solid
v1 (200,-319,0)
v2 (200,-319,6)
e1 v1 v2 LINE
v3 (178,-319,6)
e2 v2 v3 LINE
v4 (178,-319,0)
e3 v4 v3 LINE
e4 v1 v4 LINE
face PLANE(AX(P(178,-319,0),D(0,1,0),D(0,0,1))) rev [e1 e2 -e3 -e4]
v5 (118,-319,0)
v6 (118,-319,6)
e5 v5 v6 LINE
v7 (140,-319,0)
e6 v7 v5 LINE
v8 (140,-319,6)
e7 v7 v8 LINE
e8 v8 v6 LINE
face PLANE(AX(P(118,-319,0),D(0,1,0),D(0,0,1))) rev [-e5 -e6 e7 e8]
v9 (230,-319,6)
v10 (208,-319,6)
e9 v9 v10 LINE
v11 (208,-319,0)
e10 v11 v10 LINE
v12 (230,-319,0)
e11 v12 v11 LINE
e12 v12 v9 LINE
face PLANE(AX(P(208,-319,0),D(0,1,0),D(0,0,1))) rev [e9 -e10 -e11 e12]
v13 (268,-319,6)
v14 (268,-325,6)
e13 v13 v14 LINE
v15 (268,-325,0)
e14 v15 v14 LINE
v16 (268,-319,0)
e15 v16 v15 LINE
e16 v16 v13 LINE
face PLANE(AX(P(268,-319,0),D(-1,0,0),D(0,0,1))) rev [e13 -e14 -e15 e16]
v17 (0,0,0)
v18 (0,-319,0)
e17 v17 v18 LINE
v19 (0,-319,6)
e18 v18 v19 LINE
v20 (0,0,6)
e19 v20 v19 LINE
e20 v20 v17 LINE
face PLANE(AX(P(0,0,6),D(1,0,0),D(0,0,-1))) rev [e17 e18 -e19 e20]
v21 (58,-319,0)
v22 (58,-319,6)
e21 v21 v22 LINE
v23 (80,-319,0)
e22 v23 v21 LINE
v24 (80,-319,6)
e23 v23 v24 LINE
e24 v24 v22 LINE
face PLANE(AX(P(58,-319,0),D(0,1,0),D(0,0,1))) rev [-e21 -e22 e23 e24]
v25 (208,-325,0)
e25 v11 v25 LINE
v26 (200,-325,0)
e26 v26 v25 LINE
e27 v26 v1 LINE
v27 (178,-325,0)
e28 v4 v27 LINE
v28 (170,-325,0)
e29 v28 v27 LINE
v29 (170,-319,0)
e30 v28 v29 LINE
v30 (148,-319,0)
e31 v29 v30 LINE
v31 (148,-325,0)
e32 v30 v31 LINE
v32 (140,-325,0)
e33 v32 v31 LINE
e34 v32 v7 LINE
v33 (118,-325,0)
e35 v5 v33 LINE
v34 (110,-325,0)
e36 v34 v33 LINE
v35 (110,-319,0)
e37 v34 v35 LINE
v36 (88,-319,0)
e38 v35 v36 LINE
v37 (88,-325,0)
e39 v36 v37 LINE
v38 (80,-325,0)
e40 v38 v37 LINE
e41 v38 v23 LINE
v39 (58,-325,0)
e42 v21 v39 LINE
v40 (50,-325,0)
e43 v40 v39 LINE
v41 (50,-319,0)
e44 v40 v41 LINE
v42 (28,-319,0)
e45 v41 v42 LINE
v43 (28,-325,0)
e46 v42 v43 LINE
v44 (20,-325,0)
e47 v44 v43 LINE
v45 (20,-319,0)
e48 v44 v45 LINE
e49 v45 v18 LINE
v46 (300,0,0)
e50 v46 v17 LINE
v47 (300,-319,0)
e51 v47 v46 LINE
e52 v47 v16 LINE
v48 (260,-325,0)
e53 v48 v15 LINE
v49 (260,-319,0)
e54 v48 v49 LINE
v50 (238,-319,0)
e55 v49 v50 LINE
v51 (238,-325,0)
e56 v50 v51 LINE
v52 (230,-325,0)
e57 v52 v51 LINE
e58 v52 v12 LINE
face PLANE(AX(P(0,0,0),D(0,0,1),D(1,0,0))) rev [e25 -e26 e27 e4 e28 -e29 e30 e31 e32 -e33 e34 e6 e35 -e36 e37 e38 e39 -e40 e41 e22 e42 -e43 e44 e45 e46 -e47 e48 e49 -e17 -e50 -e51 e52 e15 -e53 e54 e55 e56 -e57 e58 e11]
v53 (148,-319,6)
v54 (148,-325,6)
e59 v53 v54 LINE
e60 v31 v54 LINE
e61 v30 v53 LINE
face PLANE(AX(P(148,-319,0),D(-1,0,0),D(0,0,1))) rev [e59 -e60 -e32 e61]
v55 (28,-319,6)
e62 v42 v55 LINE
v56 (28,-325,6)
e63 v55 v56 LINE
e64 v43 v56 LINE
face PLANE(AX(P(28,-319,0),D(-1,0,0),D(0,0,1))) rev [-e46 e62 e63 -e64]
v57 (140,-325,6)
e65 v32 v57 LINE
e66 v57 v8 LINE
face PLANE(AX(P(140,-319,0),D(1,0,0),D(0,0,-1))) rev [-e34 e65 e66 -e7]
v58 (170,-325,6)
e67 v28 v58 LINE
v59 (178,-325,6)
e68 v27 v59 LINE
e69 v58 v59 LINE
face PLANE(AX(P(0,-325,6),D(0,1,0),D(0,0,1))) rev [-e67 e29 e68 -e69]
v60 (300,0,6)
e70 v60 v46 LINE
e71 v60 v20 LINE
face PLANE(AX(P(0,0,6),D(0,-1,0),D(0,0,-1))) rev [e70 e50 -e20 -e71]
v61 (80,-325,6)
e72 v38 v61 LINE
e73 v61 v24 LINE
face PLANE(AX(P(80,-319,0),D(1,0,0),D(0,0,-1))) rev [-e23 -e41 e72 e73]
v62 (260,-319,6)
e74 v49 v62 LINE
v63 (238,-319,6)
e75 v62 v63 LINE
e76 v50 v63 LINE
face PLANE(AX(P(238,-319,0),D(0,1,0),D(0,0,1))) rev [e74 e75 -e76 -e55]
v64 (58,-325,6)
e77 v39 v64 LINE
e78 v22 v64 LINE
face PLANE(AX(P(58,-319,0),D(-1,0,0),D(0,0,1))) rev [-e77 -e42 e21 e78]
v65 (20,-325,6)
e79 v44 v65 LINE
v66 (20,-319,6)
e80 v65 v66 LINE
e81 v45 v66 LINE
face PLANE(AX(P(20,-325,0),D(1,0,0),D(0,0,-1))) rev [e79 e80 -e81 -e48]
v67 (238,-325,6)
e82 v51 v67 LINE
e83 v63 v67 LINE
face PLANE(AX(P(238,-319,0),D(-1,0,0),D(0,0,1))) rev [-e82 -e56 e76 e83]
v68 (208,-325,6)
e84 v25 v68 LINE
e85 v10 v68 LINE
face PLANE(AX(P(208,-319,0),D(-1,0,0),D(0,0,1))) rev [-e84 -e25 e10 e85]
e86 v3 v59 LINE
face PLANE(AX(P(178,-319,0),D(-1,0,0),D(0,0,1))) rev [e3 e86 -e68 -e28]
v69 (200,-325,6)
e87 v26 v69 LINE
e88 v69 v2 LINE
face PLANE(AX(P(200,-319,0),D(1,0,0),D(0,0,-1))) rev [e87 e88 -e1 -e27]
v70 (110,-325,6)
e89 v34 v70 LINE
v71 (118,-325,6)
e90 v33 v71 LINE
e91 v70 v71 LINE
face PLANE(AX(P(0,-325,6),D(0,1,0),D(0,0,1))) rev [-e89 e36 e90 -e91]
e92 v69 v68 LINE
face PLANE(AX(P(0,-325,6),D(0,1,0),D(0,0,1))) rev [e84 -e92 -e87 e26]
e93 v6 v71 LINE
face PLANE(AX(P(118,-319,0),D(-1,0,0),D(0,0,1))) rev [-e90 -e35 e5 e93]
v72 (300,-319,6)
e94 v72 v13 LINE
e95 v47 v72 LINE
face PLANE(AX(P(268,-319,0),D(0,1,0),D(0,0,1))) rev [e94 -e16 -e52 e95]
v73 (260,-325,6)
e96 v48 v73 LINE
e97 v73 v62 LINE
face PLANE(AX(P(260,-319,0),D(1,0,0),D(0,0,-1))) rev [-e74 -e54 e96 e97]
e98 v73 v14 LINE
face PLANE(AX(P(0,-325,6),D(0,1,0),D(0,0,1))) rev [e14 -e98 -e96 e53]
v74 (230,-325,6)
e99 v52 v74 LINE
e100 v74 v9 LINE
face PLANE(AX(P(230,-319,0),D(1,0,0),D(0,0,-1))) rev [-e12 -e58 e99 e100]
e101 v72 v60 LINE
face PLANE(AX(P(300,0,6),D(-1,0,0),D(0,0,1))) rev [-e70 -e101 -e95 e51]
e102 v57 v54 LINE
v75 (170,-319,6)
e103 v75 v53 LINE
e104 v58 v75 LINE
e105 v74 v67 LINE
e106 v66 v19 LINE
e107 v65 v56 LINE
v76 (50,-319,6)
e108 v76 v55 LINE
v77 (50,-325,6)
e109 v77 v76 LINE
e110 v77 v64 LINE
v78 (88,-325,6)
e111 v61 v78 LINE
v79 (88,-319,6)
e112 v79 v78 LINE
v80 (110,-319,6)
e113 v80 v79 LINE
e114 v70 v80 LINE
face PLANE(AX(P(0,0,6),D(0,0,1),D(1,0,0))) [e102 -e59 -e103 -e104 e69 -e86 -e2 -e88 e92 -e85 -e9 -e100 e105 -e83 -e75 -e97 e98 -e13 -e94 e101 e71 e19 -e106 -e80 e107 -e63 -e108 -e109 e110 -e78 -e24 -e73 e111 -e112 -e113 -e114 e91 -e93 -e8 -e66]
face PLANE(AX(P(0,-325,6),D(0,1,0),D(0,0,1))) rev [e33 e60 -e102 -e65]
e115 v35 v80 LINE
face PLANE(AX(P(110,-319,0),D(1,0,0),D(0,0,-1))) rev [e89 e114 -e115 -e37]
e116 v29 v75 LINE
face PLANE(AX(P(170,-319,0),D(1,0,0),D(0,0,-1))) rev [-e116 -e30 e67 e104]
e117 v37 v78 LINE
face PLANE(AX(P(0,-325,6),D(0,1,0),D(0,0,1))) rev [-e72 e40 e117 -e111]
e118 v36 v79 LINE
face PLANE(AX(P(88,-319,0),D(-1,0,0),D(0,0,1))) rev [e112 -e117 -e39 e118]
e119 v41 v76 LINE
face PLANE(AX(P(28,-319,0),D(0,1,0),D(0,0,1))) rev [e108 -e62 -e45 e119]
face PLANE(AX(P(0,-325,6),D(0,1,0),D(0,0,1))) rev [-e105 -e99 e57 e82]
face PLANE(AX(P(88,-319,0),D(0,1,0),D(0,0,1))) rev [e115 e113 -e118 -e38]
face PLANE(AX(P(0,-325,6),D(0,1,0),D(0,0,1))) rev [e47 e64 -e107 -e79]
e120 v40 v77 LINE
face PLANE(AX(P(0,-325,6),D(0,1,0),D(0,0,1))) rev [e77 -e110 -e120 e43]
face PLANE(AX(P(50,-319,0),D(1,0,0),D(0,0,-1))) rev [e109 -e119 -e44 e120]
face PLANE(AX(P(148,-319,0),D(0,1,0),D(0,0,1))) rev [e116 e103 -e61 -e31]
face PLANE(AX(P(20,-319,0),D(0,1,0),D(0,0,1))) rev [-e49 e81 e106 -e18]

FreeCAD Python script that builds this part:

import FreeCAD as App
import Part
import Sketcher

V = App.Vector


def add_polygon(sketch, points):
    """Adds a closed chain of lines whose ends are joined by coincident constraints."""
    first, n = sketch.GeometryCount, len(points)
    for a, b in zip(points, points[1:] + points[:1]):
        sketch.addGeometry(Part.LineSegment(App.Vector(*a, 0), App.Vector(*b, 0)), False)
    for i in range(n):
        sketch.addConstraint(Sketcher.Constraint("Coincident", first + i, 2, first + (i + 1) % n, 1))

doc = App.newDocument("Part")
body = doc.addObject("PartDesign::Body", "Body")

# Sketch on XY plane
sketch1 = body.newObject("Sketcher::SketchObject", "Sketch")
sketch1.AttachmentSupport = (doc.getObject("XY_Plane"), [""])
sketch1.MapMode = "FlatFace"
add_polygon(sketch1, [(0, 0), (0, -325), (300, -325), (300, 0)])  # lines 0-3
sketch1.addConstraint(Sketcher.Constraint("Vertical", 0))
sketch1.addConstraint(Sketcher.Constraint("Horizontal", 1))
sketch1.addConstraint(Sketcher.Constraint("Vertical", 2))
sketch1.addConstraint(Sketcher.Constraint("Horizontal", 3))
sketch1.addConstraint(Sketcher.Constraint("Coincident", 3, 2, -1, 1))
sketch1.addConstraint(Sketcher.Constraint("DistanceX", 1, 1, 1, 2, 300.0))
sketch1.addConstraint(Sketcher.Constraint("DistanceY", 0, 2, 0, 1, 325.0))
pad1 = body.newObject("PartDesign::Pad", "Pad")
pad1.Profile = sketch1
pad1.Length = 6

# Sketch on XY plane
sketch2 = body.newObject("Sketcher::SketchObject", "Sketch001")
sketch2.AttachmentSupport = (doc.getObject("XY_Plane"), [""])
sketch2.MapMode = "FlatFace"
sketch2.AttachmentOffset = App.Placement(V(0, 0, 6), App.Rotation())
add_polygon(sketch2, [(28, -319), (28, -325), (50, -325), (50, -319)])  # lines 0-3
add_polygon(sketch2, [(0, -319), (0, -325), (20, -325), (20, -319)])  # lines 4-7
add_polygon(sketch2, [(58, -319), (58, -325), (80, -325), (80, -319)])  # lines 8-11
add_polygon(sketch2, [(88, -319), (88, -325), (110, -325), (110, -319)])  # lines 12-15
add_polygon(sketch2, [(118, -319), (118, -325), (140, -325), (140, -319)])  # lines 16-19
add_polygon(sketch2, [(148, -319), (148, -325), (170, -325), (170, -319)])  # lines 20-23
add_polygon(sketch2, [(178, -319), (178, -325), (200, -325), (200, -319)])  # lines 24-27
add_polygon(sketch2, [(208, -319), (208, -325), (230, -325), (230, -319)])  # lines 28-31
add_polygon(sketch2, [(238, -319), (238, -325), (260, -325), (260, -319)])  # lines 32-35
add_polygon(sketch2, [(268, -319), (268, -325), (300, -325), (300, -319)])  # lines 36-39
sketch2.addConstraint(Sketcher.Constraint("Vertical", 0))
sketch2.addConstraint(Sketcher.Constraint("Horizontal", 1))
sketch2.addConstraint(Sketcher.Constraint("Vertical", 2))
sketch2.addConstraint(Sketcher.Constraint("Horizontal", 3))
sketch2.addConstraint(Sketcher.Constraint("Vertical", 4))
sketch2.addConstraint(Sketcher.Constraint("Horizontal", 5))
sketch2.addConstraint(Sketcher.Constraint("Vertical", 6))
sketch2.addConstraint(Sketcher.Constraint("Horizontal", 7))
sketch2.addConstraint(Sketcher.Constraint("Vertical", 8))
sketch2.addConstraint(Sketcher.Constraint("Horizontal", 9))
sketch2.addConstraint(Sketcher.Constraint("Vertical", 10))
sketch2.addConstraint(Sketcher.Constraint("Horizontal", 11))
sketch2.addConstraint(Sketcher.Constraint("Vertical", 12))
sketch2.addConstraint(Sketcher.Constraint("Horizontal", 13))
sketch2.addConstraint(Sketcher.Constraint("Vertical", 14))
sketch2.addConstraint(Sketcher.Constraint("Horizontal", 15))
sketch2.addConstraint(Sketcher.Constraint("Vertical", 16))
sketch2.addConstraint(Sketcher.Constraint("Horizontal", 17))
sketch2.addConstraint(Sketcher.Constraint("Vertical", 18))
sketch2.addConstraint(Sketcher.Constraint("Horizontal", 19))
sketch2.addConstraint(Sketcher.Constraint("Vertical", 20))
sketch2.addConstraint(Sketcher.Constraint("Horizontal", 21))
sketch2.addConstraint(Sketcher.Constraint("Vertical", 22))
sketch2.addConstraint(Sketcher.Constraint("Horizontal", 23))
sketch2.addConstraint(Sketcher.Constraint("Vertical", 24))
sketch2.addConstraint(Sketcher.Constraint("Horizontal", 25))
sketch2.addConstraint(Sketcher.Constraint("Vertical", 26))
sketch2.addConstraint(Sketcher.Constraint("Horizontal", 27))
sketch2.addConstraint(Sketcher.Constraint("Vertical", 28))
sketch2.addConstraint(Sketcher.Constraint("Horizontal", 29))
sketch2.addConstraint(Sketcher.Constraint("Vertical", 30))
sketch2.addConstraint(Sketcher.Constraint("Horizontal", 31))
sketch2.addConstraint(Sketcher.Constraint("Vertical", 32))
sketch2.addConstraint(Sketcher.Constraint("Horizontal", 33))
sketch2.addConstraint(Sketcher.Constraint("Vertical", 34))
sketch2.addConstraint(Sketcher.Constraint("Horizontal", 35))
sketch2.addConstraint(Sketcher.Constraint("Vertical", 36))
sketch2.addConstraint(Sketcher.Constraint("Horizontal", 37))
sketch2.addConstraint(Sketcher.Constraint("Vertical", 38))
sketch2.addConstraint(Sketcher.Constraint("Horizontal", 39))
sketch2.addConstraint(Sketcher.Constraint("PointOnObject", 4, 2, -2))
sketch2.addConstraint(Sketcher.Constraint("Horizontal", 1, 2, 4, 2))
sketch2.addConstraint(Sketcher.Constraint("Horizontal", 3, 2, 6, 2))
sketch2.addConstraint(Sketcher.Constraint("Horizontal", 5, 2, 8, 2))
sketch2.addConstraint(Sketcher.Constraint("Horizontal", 7, 2, 10, 2))
sketch2.addConstraint(Sketcher.Constraint("Horizontal", 9, 2, 12, 2))
sketch2.addConstraint(Sketcher.Constraint("Horizontal", 11, 2, 14, 2))
sketch2.addConstraint(Sketcher.Constraint("Horizontal", 13, 2, 16, 2))
sketch2.addConstraint(Sketcher.Constraint("Horizontal", 15, 2, 18, 2))
sketch2.addConstraint(Sketcher.Constraint("Horizontal", 17, 2, 20, 2))
sketch2.addConstraint(Sketcher.Constraint("Horizontal", 19, 2, 22, 2))
sketch2.addConstraint(Sketcher.Constraint("Horizontal", 21, 2, 24, 2))
sketch2.addConstraint(Sketcher.Constraint("Horizontal", 23, 2, 26, 2))
sketch2.addConstraint(Sketcher.Constraint("Horizontal", 25, 2, 28, 2))
sketch2.addConstraint(Sketcher.Constraint("Horizontal", 27, 2, 30, 2))
sketch2.addConstraint(Sketcher.Constraint("Horizontal", 29, 2, 32, 2))
sketch2.addConstraint(Sketcher.Constraint("Horizontal", 31, 2, 34, 2))
sketch2.addConstraint(Sketcher.Constraint("Horizontal", 33, 2, 36, 2))
sketch2.addConstraint(Sketcher.Constraint("Horizontal", 35, 2, 38, 2))
sketch2.addConstraint(Sketcher.Constraint("Equal", 3, 9))
sketch2.addConstraint(Sketcher.Constraint("Equal", 11, 13))
sketch2.addConstraint(Sketcher.Constraint("Equal", 15, 17))
sketch2.addConstraint(Sketcher.Constraint("Equal", 19, 21))
sketch2.addConstraint(Sketcher.Constraint("Equal", 23, 25))
sketch2.addConstraint(Sketcher.Constraint("Equal", 27, 29))
sketch2.addConstraint(Sketcher.Constraint("Equal", 31, 33))
sketch2.addConstraint(Sketcher.Constraint("DistanceX", 1, 1, 1, 2, 22.0))
sketch2.addConstraint(Sketcher.Constraint("DistanceX", 5, 1, 5, 2, 20.0))
sketch2.addConstraint(Sketcher.Constraint("DistanceX", 37, 1, 37, 2, 32.0))
sketch2.addConstraint(Sketcher.Constraint("DistanceY", 0, 2, 0, 1, 6.0))
sketch2.addConstraint(Sketcher.Constraint("DistanceX", -1, 1, 0, 2, 28.0))
sketch2.addConstraint(Sketcher.Constraint("DistanceY", 0, 2, -1, 1, 325.0))
sketch2.addConstraint(Sketcher.Constraint("DistanceX", -1, 1, 8, 2, 58.0))
sketch2.addConstraint(Sketcher.Constraint("DistanceX", -1, 1, 12, 2, 88.0))
sketch2.addConstraint(Sketcher.Constraint("DistanceX", -1, 1, 16, 2, 118.0))
sketch2.addConstraint(Sketcher.Constraint("DistanceX", -1, 1, 20, 2, 148.0))
sketch2.addConstraint(Sketcher.Constraint("DistanceX", -1, 1, 24, 2, 178.0))
sketch2.addConstraint(Sketcher.Constraint("DistanceX", -1, 1, 28, 2, 208.0))
sketch2.addConstraint(Sketcher.Constraint("DistanceX", -1, 1, 32, 2, 238.0))
sketch2.addConstraint(Sketcher.Constraint("DistanceX", -1, 1, 36, 2, 268.0))
pocket1 = body.newObject("PartDesign::Pocket", "Pocket")
pocket1.Profile = sketch2
pocket1.Type = "ThroughAll"

doc.recompute()
